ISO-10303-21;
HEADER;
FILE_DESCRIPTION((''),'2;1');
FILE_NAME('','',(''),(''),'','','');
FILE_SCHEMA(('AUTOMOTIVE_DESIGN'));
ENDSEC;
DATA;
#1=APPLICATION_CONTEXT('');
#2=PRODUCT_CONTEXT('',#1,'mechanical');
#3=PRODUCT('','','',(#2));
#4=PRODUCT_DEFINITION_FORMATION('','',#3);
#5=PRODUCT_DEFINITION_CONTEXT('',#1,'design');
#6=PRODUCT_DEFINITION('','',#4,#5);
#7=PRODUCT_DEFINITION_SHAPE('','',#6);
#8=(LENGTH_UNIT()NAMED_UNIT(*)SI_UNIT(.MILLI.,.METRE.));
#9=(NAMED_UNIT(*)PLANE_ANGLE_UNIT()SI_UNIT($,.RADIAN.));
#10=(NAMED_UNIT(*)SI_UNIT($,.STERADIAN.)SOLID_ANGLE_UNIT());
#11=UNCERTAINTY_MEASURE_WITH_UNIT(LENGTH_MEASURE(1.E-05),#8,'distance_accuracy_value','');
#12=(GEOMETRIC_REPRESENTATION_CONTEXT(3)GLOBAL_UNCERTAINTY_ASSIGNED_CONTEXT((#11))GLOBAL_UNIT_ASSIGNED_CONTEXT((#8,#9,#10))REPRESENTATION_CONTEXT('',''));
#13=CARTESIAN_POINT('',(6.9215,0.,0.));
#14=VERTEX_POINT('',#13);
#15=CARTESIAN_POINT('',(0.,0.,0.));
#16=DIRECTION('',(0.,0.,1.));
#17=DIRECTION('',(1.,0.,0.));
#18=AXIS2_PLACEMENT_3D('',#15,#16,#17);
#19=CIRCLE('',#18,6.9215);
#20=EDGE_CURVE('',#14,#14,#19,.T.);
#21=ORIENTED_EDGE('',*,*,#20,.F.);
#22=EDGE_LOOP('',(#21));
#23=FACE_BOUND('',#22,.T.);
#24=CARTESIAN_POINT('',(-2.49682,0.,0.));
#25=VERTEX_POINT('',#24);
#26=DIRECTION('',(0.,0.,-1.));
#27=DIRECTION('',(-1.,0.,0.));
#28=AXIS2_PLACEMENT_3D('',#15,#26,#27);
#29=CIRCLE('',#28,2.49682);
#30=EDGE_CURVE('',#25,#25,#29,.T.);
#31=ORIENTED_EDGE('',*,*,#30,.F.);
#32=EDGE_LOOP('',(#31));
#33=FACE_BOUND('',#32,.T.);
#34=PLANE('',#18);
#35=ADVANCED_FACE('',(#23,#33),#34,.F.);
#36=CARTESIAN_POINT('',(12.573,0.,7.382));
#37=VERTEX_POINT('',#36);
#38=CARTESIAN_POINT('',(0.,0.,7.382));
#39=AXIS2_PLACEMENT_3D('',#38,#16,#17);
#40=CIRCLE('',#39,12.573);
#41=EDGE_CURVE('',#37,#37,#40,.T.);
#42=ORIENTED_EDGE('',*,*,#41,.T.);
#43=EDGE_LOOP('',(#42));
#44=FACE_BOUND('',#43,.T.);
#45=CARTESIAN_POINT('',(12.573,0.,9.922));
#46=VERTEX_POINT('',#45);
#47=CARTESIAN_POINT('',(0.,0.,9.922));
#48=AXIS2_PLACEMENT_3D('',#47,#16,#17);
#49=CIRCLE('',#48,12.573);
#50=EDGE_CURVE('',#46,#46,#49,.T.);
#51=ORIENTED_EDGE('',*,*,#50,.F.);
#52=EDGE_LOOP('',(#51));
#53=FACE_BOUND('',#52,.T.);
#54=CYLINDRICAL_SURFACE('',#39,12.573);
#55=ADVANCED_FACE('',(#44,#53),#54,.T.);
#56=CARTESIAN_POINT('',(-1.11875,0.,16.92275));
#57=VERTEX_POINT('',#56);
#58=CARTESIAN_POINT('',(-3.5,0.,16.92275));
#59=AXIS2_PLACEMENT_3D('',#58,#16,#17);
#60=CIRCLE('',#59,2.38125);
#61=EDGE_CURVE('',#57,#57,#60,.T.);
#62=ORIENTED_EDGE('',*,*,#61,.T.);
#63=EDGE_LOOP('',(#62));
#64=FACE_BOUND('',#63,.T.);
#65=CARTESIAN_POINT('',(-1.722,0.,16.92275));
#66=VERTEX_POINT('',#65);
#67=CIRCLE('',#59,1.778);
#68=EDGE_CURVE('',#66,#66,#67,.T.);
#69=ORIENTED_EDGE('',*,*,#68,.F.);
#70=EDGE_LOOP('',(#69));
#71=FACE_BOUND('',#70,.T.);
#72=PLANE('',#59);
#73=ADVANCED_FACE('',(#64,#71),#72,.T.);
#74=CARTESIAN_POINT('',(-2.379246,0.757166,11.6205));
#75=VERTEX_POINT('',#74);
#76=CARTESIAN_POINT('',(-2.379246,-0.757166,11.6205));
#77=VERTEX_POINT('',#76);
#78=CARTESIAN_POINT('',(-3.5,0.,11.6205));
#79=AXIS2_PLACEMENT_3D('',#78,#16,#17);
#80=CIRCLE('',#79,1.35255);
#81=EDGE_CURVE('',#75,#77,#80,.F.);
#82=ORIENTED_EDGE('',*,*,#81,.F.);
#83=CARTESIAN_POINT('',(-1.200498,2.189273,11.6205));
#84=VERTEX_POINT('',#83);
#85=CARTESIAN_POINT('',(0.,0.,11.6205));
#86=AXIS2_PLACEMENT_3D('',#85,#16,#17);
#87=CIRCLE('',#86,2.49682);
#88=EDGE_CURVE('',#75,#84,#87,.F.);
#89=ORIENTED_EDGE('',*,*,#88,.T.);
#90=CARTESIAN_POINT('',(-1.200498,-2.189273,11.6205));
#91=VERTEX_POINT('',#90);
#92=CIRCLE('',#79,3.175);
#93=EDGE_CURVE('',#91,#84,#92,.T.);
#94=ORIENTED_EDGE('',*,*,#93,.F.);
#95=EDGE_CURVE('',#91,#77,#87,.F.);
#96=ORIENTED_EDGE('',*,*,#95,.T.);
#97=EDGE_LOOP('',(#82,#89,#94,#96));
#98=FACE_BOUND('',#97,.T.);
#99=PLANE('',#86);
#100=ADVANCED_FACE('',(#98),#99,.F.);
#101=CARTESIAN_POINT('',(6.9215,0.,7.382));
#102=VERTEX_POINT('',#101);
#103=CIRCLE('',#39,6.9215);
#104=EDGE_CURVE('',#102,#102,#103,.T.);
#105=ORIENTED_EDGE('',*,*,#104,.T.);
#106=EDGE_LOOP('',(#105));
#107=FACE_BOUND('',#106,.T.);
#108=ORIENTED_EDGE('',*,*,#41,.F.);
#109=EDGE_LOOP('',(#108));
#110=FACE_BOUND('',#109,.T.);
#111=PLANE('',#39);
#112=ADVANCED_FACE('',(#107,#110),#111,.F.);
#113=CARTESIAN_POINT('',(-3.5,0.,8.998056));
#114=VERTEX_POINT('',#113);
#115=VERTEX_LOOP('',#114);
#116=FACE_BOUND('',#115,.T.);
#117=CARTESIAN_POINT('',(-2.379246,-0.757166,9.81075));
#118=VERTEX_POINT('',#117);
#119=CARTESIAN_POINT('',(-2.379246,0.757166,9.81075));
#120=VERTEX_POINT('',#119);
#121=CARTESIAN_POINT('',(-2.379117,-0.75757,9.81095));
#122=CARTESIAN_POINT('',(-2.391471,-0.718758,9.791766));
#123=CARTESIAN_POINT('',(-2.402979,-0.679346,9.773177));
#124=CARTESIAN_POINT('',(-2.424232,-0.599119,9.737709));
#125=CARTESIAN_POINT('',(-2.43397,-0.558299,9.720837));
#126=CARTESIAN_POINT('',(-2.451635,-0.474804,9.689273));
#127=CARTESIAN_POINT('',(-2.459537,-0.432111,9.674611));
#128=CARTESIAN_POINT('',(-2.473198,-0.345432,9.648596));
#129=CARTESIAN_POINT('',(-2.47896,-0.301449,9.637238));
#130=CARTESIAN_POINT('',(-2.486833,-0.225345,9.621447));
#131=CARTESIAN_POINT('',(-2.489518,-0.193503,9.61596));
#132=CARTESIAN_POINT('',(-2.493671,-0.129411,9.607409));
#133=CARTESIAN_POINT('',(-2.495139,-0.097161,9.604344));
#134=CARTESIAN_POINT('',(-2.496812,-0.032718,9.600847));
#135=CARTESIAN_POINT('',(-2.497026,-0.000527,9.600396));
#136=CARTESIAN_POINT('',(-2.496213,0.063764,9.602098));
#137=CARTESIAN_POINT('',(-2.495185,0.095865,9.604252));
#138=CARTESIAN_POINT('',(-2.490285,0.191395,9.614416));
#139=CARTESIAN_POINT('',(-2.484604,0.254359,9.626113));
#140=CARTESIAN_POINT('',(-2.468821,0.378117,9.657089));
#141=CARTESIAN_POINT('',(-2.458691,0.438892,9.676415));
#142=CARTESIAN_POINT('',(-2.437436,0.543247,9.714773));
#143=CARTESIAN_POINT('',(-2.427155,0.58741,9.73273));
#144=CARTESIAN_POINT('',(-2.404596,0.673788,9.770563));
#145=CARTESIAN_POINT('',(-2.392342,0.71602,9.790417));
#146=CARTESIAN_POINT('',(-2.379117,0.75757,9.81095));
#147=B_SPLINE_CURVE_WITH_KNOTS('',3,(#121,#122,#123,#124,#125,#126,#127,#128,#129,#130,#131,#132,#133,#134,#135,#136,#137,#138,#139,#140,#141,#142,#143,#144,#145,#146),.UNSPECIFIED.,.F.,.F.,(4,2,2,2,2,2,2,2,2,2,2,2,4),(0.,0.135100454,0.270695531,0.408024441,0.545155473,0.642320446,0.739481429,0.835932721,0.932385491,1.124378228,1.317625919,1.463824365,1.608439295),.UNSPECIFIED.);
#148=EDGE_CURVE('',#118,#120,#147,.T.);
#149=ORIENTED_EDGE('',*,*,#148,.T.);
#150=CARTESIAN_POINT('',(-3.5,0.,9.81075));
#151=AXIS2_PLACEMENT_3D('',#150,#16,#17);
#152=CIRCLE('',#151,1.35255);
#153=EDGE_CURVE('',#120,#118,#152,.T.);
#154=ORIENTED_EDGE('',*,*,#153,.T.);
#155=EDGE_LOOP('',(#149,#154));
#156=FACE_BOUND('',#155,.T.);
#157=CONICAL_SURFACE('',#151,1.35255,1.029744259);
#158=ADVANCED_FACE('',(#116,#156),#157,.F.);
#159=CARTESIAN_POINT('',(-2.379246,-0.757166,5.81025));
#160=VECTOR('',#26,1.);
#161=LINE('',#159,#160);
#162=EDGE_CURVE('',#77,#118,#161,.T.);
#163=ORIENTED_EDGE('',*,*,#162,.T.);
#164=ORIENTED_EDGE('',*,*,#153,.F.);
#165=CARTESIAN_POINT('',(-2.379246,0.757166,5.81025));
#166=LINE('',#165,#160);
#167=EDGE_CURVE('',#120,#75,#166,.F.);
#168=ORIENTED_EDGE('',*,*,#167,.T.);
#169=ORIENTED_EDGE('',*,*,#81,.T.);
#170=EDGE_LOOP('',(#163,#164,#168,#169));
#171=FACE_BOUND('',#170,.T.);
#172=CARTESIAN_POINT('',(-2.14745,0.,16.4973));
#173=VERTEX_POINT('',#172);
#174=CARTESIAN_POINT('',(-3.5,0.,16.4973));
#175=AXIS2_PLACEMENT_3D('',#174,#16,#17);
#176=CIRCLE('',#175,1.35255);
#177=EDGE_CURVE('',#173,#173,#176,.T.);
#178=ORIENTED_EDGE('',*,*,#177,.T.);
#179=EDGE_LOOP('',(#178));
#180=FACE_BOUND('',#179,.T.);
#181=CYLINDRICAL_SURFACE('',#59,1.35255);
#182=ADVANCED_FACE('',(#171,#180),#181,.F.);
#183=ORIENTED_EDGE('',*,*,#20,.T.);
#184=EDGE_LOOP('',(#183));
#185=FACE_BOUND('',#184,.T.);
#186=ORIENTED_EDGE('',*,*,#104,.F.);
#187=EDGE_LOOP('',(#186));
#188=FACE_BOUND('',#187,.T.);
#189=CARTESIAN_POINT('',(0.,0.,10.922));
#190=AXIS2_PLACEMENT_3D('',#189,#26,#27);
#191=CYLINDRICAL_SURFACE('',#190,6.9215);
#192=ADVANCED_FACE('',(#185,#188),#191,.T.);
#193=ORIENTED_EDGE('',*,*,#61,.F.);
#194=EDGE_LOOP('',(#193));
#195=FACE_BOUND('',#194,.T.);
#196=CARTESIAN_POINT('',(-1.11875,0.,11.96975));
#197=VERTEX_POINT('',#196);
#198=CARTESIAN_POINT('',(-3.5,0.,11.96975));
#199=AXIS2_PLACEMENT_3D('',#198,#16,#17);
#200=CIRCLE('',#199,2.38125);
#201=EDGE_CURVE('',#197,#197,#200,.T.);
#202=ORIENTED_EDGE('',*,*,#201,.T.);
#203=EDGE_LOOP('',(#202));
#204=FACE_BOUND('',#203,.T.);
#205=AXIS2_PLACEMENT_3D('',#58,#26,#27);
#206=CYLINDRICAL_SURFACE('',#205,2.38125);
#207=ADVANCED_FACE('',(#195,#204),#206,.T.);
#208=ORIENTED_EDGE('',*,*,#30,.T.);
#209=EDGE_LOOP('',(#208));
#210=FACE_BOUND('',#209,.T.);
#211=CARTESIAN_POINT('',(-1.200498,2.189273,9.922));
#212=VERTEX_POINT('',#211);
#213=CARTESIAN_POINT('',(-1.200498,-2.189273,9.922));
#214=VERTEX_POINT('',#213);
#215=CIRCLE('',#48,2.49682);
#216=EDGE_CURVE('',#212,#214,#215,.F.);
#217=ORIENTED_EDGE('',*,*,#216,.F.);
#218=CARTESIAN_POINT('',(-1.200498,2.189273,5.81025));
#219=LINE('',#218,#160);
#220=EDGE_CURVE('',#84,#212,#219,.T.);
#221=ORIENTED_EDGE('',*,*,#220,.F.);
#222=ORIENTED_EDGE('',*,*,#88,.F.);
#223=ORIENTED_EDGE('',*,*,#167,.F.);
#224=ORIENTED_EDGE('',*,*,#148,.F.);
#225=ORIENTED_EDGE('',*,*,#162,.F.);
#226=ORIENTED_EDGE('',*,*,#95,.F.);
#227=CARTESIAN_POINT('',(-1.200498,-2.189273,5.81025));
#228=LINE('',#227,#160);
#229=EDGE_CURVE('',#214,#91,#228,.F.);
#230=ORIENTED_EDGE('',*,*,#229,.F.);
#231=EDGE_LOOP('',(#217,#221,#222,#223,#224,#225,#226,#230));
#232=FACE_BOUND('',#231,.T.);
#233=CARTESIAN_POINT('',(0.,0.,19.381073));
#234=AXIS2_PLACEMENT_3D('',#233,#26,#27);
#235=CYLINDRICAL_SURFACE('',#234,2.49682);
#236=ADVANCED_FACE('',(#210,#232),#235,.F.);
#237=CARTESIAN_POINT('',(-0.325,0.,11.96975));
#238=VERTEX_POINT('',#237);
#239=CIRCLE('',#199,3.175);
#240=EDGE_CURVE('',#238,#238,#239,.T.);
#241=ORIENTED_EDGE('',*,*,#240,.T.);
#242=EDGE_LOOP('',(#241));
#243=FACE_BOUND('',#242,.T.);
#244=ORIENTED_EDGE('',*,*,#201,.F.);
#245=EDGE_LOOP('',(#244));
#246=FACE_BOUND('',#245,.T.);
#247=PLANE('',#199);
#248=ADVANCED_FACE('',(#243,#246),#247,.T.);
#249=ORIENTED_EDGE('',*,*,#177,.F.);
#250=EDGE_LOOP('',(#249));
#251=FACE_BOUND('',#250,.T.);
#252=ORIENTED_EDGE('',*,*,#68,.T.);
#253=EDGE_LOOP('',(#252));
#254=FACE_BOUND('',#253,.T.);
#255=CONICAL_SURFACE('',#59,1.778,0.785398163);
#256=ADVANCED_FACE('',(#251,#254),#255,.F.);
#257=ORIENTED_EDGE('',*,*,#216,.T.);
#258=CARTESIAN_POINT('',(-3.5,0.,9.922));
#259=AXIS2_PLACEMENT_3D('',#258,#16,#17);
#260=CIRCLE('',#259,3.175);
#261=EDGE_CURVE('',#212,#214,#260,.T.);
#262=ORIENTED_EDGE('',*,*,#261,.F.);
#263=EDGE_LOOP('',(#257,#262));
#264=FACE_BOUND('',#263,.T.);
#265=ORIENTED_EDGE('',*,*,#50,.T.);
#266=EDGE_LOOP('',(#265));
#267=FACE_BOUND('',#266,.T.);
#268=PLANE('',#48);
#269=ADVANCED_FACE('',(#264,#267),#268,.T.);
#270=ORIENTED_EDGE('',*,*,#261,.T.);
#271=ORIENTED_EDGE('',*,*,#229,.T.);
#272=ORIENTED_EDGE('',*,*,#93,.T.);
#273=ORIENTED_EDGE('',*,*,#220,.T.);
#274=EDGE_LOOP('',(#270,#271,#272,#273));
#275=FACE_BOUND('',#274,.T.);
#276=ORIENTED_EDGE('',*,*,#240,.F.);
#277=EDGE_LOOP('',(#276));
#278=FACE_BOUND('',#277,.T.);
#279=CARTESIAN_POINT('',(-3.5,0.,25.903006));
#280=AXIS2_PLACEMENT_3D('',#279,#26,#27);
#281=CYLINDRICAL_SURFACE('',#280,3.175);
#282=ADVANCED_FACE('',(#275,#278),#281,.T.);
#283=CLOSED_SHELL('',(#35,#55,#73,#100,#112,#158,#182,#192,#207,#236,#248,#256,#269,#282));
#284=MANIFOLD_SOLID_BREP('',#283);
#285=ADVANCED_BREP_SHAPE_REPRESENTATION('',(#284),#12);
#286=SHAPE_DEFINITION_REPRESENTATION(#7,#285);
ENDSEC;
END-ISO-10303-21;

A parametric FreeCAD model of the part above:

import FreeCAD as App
import Part
import Sketcher
from FreeCAD import Vector
Q = App.Units.Quantity

doc = App.newDocument("Part")
body = doc.addObject("PartDesign::Body", "Body")

sketch1 = doc.addObject("Sketcher::SketchObject", "Sketch")
body.addObject(sketch1)
sketch1.AttachmentSupport = (doc.XY_Plane, [""])
sketch1.MapMode = "FlatFace"
sketch1.addGeometry([
    Part.Circle(Vector(0, 0, 0), Vector(0, 0, 1), 6.9215),
    Part.Circle(Vector(0, 0, 0), Vector(0, 0, 1), 0.127),
], False)
sketch1.addConstraint([
    Sketcher.Constraint("Coincident", 0, 3, -1, 1),
    Sketcher.Constraint("Coincident", 1, 3, -1, 1),
    Sketcher.Constraint("Diameter", 1, Q("0.01 in")),
    Sketcher.Constraint("Diameter", 0, Q("0.545 in")),
])
pad1 = doc.addObject("PartDesign::Pad", "Pad")
body.addObject(pad1)
pad1.Profile = sketch1
pad1.Length = Q("0.43 in")

sketch2 = doc.addObject("Sketcher::SketchObject", "Sketch001")
body.addObject(sketch2)
sketch2.AttachmentSupport = (doc.XY_Plane, [""])
sketch2.MapMode = "FlatFace"
sketch2.AttachmentOffset = App.Placement(Vector(0, 0, 0.43 * 25.4), App.Rotation())
sketch2.addGeometry(Part.Circle(Vector(-3.5, 0, 0), Vector(0, 0, 1), 2.38125), False)
sketch2.addConstraint([
    Sketcher.Constraint("PointOnObject", 0, 3, -1),
    Sketcher.Constraint("Diameter", 0, Q("0.1875 in")),
    Sketcher.Constraint("DistanceX", 0, 3, -1, 1, 3.5),
])
pad2 = doc.addObject("PartDesign::Pad", "Pad001")
body.addObject(pad2)
pad2.Profile = sketch2
pad2.Length = 6.00075

sketch3 = doc.addObject("Sketcher::SketchObject", "Sketch002")
body.addObject(sketch3)
sketch3.AttachmentSupport = (doc.XY_Plane, [""])
sketch3.MapMode = "FlatFace"
sketch3.AttachmentOffset = App.Placement(Vector(0, 0, 0.4 * 25.4), App.Rotation())
sketch3.addGeometry(Part.Circle(Vector(0, 0, 0), Vector(0, 0, 1), 6.9215), False)
sketch3.addConstraint([
    Sketcher.Constraint("Coincident", 0, 3, -1, 1),
    Sketcher.Constraint("Diameter", 0, Q("0.545 in")),
])
pad3 = doc.addObject("PartDesign::Pad", "Pad002")
body.addObject(pad3)
pad3.Profile = sketch3
pad3.Length = Q("0.03 in")

sketch4 = doc.addObject("Sketcher::SketchObject", "Sketch003")
body.addObject(sketch4)
sketch4.AttachmentSupport = (doc.XY_Plane, [""])
sketch4.MapMode = "FlatFace"
sketch4.AttachmentOffset = App.Placement(Vector(0, 0, 0.43 * 25.4), App.Rotation())
sketch4.addGeometry(Part.Circle(Vector(-3.5, 0, 0), Vector(0, 0, 1), 3.175), False)
sketch4.addConstraint([
    Sketcher.Constraint("PointOnObject", 0, 3, -1),
    Sketcher.Constraint("Diameter", 0, Q("0.25 in")),
    Sketcher.Constraint("DistanceX", 0, 3, -1, 1, 3.5),
])
pad4 = doc.addObject("PartDesign::Pad", "Pad003")
body.addObject(pad4)
pad4.Profile = sketch4
pad4.Length = 1.04775

sketch5 = doc.addObject("Sketcher::SketchObject", "Sketch004")
body.addObject(sketch5)
sketch5.AttachmentSupport = (doc.XY_Plane, [""])
sketch5.MapMode = "FlatFace"
sketch5.AttachmentOffset = App.Placement(Vector(0, 0, 16.92275), App.Rotation())
sketch5.addGeometry(Part.Circle(Vector(-3.5, 0, 0), Vector(0, 0, 1), 1.35255), False)
sketch5.addConstraint([
    Sketcher.Constraint("PointOnObject", 0, 3, -1),
    Sketcher.Constraint("Diameter", 0, Q("0.1065 in")),
    Sketcher.Constraint("DistanceX", 0, 3, -1, 1, 3.5),
])
doc.recompute()
hole = doc.addObject("PartDesign::Hole", "Hole")
body.addObject(hole)
hole.Profile = sketch5
hole.ThreadType = "None"
hole.Diameter = Q("0.1065 in")
hole.DepthType = "Dimension"
hole.Depth = Q("0.28 in")
hole.DrillPoint = "Angled"
hole.DrillPointAngle = 118
hole.HoleCutType = "Countersink"
hole.HoleCutDiameter = Q("0.14 in")
hole.HoleCutCountersinkAngle = 90

sketch6 = doc.addObject("Sketcher::SketchObject", "Sketch005")
body.addObject(sketch6)
sketch6.AttachmentSupport = (doc.XY_Plane, [""])
sketch6.MapMode = "FlatFace"
sketch6.AttachmentOffset = App.Placement(Vector(0, 0, 0.4 * 25.4), App.Rotation())
sketch6.addGeometry(Part.Circle(Vector(0, 0, 0), Vector(0, 0, 1), 0.127), False)
sketch6.addConstraint([
    Sketcher.Constraint("Coincident", 0, 3, -1, 1),
    Sketcher.Constraint("Diameter", 0, Q("0.01 in")),
])
pocket1 = doc.addObject("PartDesign::Pocket", "Pocket")
body.addObject(pocket1)
pocket1.Profile = sketch6
pocket1.Type = "ThroughAll"
pocket1.Reversed = True

sketch7 = doc.addObject("Sketcher::SketchObject", "Sketch006")
body.addObject(sketch7)
sketch7.AttachmentSupport = (doc.XY_Plane, [""])
sketch7.MapMode = "FlatFace"
sketch7.addGeometry(Part.Circle(Vector(0, 0, 0), Vector(0, 0, 1), 2.49682), False)
sketch7.addConstraint([
    Sketcher.Constraint("Coincident", 0, 3, -1, 1),
    Sketcher.Constraint("Diameter", 0, Q("0.1966 in")),
])
pocket2 = doc.addObject("PartDesign::Pocket", "Pocket001")
body.addObject(pocket2)
pocket2.Profile = sketch7
pocket2.Length = Q("0.4575 in")
pocket2.Reversed = True

sketch8 = doc.addObject("Sketcher::SketchObject", "Sketch007")
body.addObject(sketch8)
sketch8.AttachmentSupport = (doc.XY_Plane, [""])
sketch8.MapMode = "FlatFace"
sketch8.AttachmentOffset = App.Placement(Vector(0, 0, 0.43 * 25.4), App.Rotation())
sketch8.addGeometry([
    Part.LineSegment(Vector(-10.51, 10.51, 0), Vector(-10.51, -10.51, 0)),
    Part.LineSegment(Vector(-10.51, -10.51, 0), Vector(10.51, -10.51, 0)),
    Part.LineSegment(Vector(10.51, -10.51, 0), Vector(10.51, 10.51, 0)),
    Part.LineSegment(Vector(10.51, 10.51, 0), Vector(-10.51, 10.51, 0)),
    Part.Circle(Vector(-3.5, 0, 0), Vector(0, 0, 1), 3.175),
], False)
sketch8.addConstraint([
    Sketcher.Constraint("Coincident", 0, 2, 1, 1),
    Sketcher.Constraint("Coincident", 1, 2, 2, 1),
    Sketcher.Constraint("Coincident", 2, 2, 3, 1),
    Sketcher.Constraint("Coincident", 3, 2, 0, 1),
    Sketcher.Constraint("Vertical", 0),
    Sketcher.Constraint("Horizontal", 1),
    Sketcher.Constraint("Vertical", 2),
    Sketcher.Constraint("Horizontal", 3),
    Sketcher.Constraint("Symmetric", 0, 2, 2, 2, -1, 1),
    Sketcher.Constraint("PointOnObject", 4, 3, -1),
    Sketcher.Constraint("Equal", 3, 0),
    Sketcher.Constraint("Diameter", 4, Q("0.25 in")),
    Sketcher.Constraint("DistanceX", 1, 1, 1, 2, 21.02),
    Sketcher.Constraint("DistanceX", 4, 3, -1, 1, 3.5),
])
pocket3 = doc.addObject("PartDesign::Pocket", "Pocket002")
body.addObject(pocket3)
pocket3.Profile = sketch8
pocket3.Length = 1

sketch9 = doc.addObject("Sketcher::SketchObject", "Sketch008")
body.addObject(sketch9)
sketch9.AttachmentSupport = (doc.XY_Plane, [""])
sketch9.MapMode = "FlatFace"
sketch9.AttachmentOffset = App.Placement(Vector(0, 0, 7.382), App.Rotation())
sketch9.addGeometry([
    Part.Circle(Vector(0, 0, 0), Vector(0, 0, 1), 12.573),
    Part.Circle(Vector(0, 0, 0), Vector(0, 0, 1), 6.9215),
], False)
sketch9.addConstraint([
    Sketcher.Constraint("Coincident", 0, 3, -1, 1),
    Sketcher.Constraint("Coincident", 1, 3, -1, 1),
    Sketcher.Constraint("Diameter", 0, Q("0.99 in")),
    Sketcher.Constraint("Diameter", 1, Q("0.545 in")),
])
pad5 = doc.addObject("PartDesign::Pad", "Pad004")
body.addObject(pad5)
pad5.Profile = sketch9
pad5.Length = Q("0.1 in")

doc.recompute()
